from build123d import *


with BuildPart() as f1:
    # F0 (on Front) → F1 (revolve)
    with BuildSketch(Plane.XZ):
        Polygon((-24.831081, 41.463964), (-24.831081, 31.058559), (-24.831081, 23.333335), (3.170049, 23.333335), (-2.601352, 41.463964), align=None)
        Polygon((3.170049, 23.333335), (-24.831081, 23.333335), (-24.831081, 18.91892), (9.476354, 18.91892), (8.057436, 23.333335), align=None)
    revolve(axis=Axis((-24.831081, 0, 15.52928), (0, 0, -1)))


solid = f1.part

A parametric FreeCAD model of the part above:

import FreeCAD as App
import Part
import Sketcher
from FreeCAD import Vector
Q = App.Units.Quantity

doc = App.newDocument("Part")
params = doc.addObject("Spreadsheet::Sheet", "Params")
for row, (alias, value) in enumerate([
    ("revolution_angle", "360 deg"),
], start=1):
    params.set(f"A{row}", alias)
    params.set(f"B{row}", "=" + value)
    params.setAlias(f"B{row}", alias)

body = doc.addObject("PartDesign::Body", "Body")

# Sketch on XZ plane
sketch1 = body.newObject("Sketcher::SketchObject", "Sketch")
sketch1.AttachmentSupport = (doc.getObject("XZ_Plane"), [""])
sketch1.MapMode = "FlatFace"
sketch1.addGeometry(Part.LineSegment(Vector(-24.831081, 41.463964, 0), Vector(-24.831081, 18.91892, 0)), False)
sketch1.addGeometry(Part.LineSegment(Vector(-24.831081, 18.91892, 0), Vector(9.476354, 18.91892, 0)), False)
sketch1.addGeometry(Part.LineSegment(Vector(9.476354, 18.91892, 0), Vector(8.057436, 23.333335, 0)), False)
sketch1.addGeometry(Part.LineSegment(Vector(8.057436, 23.333335, 0), Vector(3.170049, 23.333335, 0)), False)
sketch1.addGeometry(Part.LineSegment(Vector(3.170049, 23.333335, 0), Vector(-2.601352, 41.463964, 0)), False)
sketch1.addGeometry(Part.LineSegment(Vector(-2.601352, 41.463964, 0), Vector(-24.831081, 41.463964, 0)), False)
sketch1.addGeometry(Part.LineSegment(Vector(-24.831081, 41.463964, 0), Vector(-24.831081, 18.91892, 0)), True)  # axis
sketch1.addConstraint(Sketcher.Constraint("Coincident", 0, 2, 1, 1))
sketch1.addConstraint(Sketcher.Constraint("Coincident", 1, 2, 2, 1))
sketch1.addConstraint(Sketcher.Constraint("Coincident", 2, 2, 3, 1))
sketch1.addConstraint(Sketcher.Constraint("Coincident", 3, 2, 4, 1))
sketch1.addConstraint(Sketcher.Constraint("Coincident", 4, 2, 5, 1))
sketch1.addConstraint(Sketcher.Constraint("Coincident", 5, 2, 0, 1))
sketch1.addConstraint(Sketcher.Constraint("Vertical", 0))
sketch1.addConstraint(Sketcher.Constraint("Horizontal", 1))
sketch1.addConstraint(Sketcher.Constraint("Horizontal", 3))
sketch1.addConstraint(Sketcher.Constraint("Horizontal", 5))
sketch1.addConstraint(Sketcher.Constraint("Vertical", 6))
sketch1.addConstraint(Sketcher.Constraint("Coincident", 6, 1, 5, 2))
sketch1.addConstraint(Sketcher.Constraint("Horizontal", 1, 2, 6, 2))
sketch1.addConstraint(Sketcher.Constraint("DistanceX", 5, 2, 5, 1, Q("22.229729 mm")))
sketch1.addConstraint(Sketcher.Constraint("DistanceX", 4, 2, 3, 2, Q("5.771401 mm")))
sketch1.addConstraint(Sketcher.Constraint("Distance", 2, Q("4.636851 mm")))
sketch1.addConstraint(Sketcher.Constraint("DistanceX", 1, 1, 1, 2, Q("34.307435 mm")))
sketch1.addConstraint(Sketcher.Constraint("DistanceX", 3, 2, 3, 1, Q("4.887387 mm")))
sketch1.addConstraint(Sketcher.Constraint("DistanceY", 0, 2, 0, 1, Q("22.545044 mm")))
sketch1.addConstraint(Sketcher.Constraint("DistanceX", 0, 2, -1, 1, Q("24.831081 mm")))
sketch1.addConstraint(Sketcher.Constraint("DistanceY", -1, 1, 0, 2, Q("18.91892 mm")))
revolution = body.newObject("PartDesign::Revolution", "Revolution")
revolution.Profile = sketch1
revolution.ReferenceAxis = (sketch1, ["Axis0"])
revolution.setExpression("Angle", "Params.revolution_angle")

doc.recompute()
